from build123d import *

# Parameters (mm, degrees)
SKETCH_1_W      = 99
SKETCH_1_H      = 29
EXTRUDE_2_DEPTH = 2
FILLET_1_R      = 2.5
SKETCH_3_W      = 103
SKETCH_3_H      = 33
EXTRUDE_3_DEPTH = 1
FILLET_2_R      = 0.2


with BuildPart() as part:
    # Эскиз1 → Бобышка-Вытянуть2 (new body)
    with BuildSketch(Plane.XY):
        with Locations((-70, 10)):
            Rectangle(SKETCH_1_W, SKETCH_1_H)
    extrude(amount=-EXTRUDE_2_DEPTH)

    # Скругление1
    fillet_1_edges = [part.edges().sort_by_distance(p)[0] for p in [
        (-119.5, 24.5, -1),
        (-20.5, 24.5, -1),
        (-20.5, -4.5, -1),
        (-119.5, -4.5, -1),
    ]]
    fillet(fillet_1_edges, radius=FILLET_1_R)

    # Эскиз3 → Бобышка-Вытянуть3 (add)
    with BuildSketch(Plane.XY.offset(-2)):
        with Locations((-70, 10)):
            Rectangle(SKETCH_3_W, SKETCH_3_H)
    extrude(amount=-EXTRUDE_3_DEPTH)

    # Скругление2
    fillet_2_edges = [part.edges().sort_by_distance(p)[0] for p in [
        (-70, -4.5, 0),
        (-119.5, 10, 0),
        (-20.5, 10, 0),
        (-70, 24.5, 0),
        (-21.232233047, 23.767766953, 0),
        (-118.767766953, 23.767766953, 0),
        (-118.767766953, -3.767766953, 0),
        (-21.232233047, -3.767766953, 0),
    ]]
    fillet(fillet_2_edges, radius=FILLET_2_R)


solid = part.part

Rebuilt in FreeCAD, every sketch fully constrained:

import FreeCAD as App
import Part
import Sketcher
Q = App.Units.Quantity


def edges_at(feature, points):
    """Names of the edges that pass closest to the given points."""
    edges = feature.Shape.Edges
    near = lambda p: min(range(len(edges)), key=lambda i: edges[i].distToShape(Part.Vertex(*p))[0])
    return sorted({f"Edge{near(p) + 1}" for p in points})

doc = App.newDocument("Part")
body = doc.addObject("PartDesign::Body", "Body")

# Sketch on XY plane
sketch1 = body.newObject("Sketcher::SketchObject", "Sketch")
sketch1.AttachmentSupport = (doc.getObject("XY_Plane"), [""])
sketch1.MapMode = "FlatFace"
sketch1.addGeometry(Part.LineSegment(App.Vector(-119.5, 24.5, 0), App.Vector(-119.5, -4.5, 0)), False)
sketch1.addGeometry(Part.LineSegment(App.Vector(-119.5, -4.5, 0), App.Vector(-20.5, -4.5, 0)), False)
sketch1.addGeometry(Part.LineSegment(App.Vector(-20.5, -4.5, 0), App.Vector(-20.5, 24.5, 0)), False)
sketch1.addGeometry(Part.LineSegment(App.Vector(-20.5, 24.5, 0), App.Vector(-119.5, 24.5, 0)), False)
sketch1.addConstraint(Sketcher.Constraint("Coincident", 0, 2, 1, 1))
sketch1.addConstraint(Sketcher.Constraint("Coincident", 1, 2, 2, 1))
sketch1.addConstraint(Sketcher.Constraint("Coincident", 2, 2, 3, 1))
sketch1.addConstraint(Sketcher.Constraint("Coincident", 3, 2, 0, 1))
sketch1.addConstraint(Sketcher.Constraint("Vertical", 0))
sketch1.addConstraint(Sketcher.Constraint("Horizontal", 1))
sketch1.addConstraint(Sketcher.Constraint("Vertical", 2))
sketch1.addConstraint(Sketcher.Constraint("Horizontal", 3))
sketch1.addConstraint(Sketcher.Constraint("DistanceX", 1, 1, 1, 2, Q("99 mm")))
sketch1.addConstraint(Sketcher.Constraint("DistanceY", 0, 2, 0, 1, Q("29 mm")))
sketch1.addConstraint(Sketcher.Constraint("DistanceX", 0, 2, -1, 1, Q("119.5 mm")))
sketch1.addConstraint(Sketcher.Constraint("DistanceY", 0, 2, -1, 1, Q("4.5 mm")))
pad1 = body.newObject("PartDesign::Pad", "Pad")
pad1.Profile = sketch1
pad1.Length = 2
pad1.Reversed = True
doc.recompute()

fillet = body.newObject("PartDesign::Fillet", "Fillet")
fillet.Base = (pad1, edges_at(pad1, [
    (-119.5, 24.5, -1),
    (-20.5, 24.5, -1),
    (-20.5, -4.5, -1),
    (-119.5, -4.5, -1),
]))
fillet.Radius = 2.5

# Sketch on XY plane
sketch2 = body.newObject("Sketcher::SketchObject", "Sketch001")
sketch2.AttachmentSupport = (doc.getObject("XY_Plane"), [""])
sketch2.MapMode = "FlatFace"
sketch2.AttachmentOffset = App.Placement(App.Vector(0, 0, -2), App.Rotation())
sketch2.addGeometry(Part.LineSegment(App.Vector(-121.5, 26.5, 0), App.Vector(-121.5, -6.5, 0)), False)
sketch2.addGeometry(Part.LineSegment(App.Vector(-121.5, -6.5, 0), App.Vector(-18.5, -6.5, 0)), False)
sketch2.addGeometry(Part.LineSegment(App.Vector(-18.5, -6.5, 0), App.Vector(-18.5, 26.5, 0)), False)
sketch2.addGeometry(Part.LineSegment(App.Vector(-18.5, 26.5, 0), App.Vector(-121.5, 26.5, 0)), False)
sketch2.addConstraint(Sketcher.Constraint("Coincident", 0, 2, 1, 1))
sketch2.addConstraint(Sketcher.Constraint("Coincident", 1, 2, 2, 1))
sketch2.addConstraint(Sketcher.Constraint("Coincident", 2, 2, 3, 1))
sketch2.addConstraint(Sketcher.Constraint("Coincident", 3, 2, 0, 1))
sketch2.addConstraint(Sketcher.Constraint("Vertical", 0))
sketch2.addConstraint(Sketcher.Constraint("Horizontal", 1))
sketch2.addConstraint(Sketcher.Constraint("Vertical", 2))
sketch2.addConstraint(Sketcher.Constraint("Horizontal", 3))
sketch2.addConstraint(Sketcher.Constraint("DistanceX", 1, 1, 1, 2, Q("103 mm")))
sketch2.addConstraint(Sketcher.Constraint("DistanceY", 0, 2, 0, 1, Q("33 mm")))
sketch2.addConstraint(Sketcher.Constraint("DistanceX", 0, 2, -1, 1, Q("121.5 mm")))
sketch2.addConstraint(Sketcher.Constraint("DistanceY", 0, 2, -1, 1, Q("6.5 mm")))
pad2 = body.newObject("PartDesign::Pad", "Pad001")
pad2.Profile = sketch2
pad2.Length = 1
pad2.Reversed = True
doc.recompute()

fillet2 = body.newObject("PartDesign::Fillet", "Fillet001")
fillet2.Base = (pad2, edges_at(pad2, [
    (-70, -4.5, 0),
    (-119.5, 10, 0),
    (-20.5, 10, 0),
    (-70, 24.5, 0),
    (-21.232, 23.768, 0),
    (-118.768, 23.768, 0),
    (-118.768, -3.768, 0),
    (-21.232, -3.768, 0),
]))
fillet2.Radius = 0.2

doc.recompute()
